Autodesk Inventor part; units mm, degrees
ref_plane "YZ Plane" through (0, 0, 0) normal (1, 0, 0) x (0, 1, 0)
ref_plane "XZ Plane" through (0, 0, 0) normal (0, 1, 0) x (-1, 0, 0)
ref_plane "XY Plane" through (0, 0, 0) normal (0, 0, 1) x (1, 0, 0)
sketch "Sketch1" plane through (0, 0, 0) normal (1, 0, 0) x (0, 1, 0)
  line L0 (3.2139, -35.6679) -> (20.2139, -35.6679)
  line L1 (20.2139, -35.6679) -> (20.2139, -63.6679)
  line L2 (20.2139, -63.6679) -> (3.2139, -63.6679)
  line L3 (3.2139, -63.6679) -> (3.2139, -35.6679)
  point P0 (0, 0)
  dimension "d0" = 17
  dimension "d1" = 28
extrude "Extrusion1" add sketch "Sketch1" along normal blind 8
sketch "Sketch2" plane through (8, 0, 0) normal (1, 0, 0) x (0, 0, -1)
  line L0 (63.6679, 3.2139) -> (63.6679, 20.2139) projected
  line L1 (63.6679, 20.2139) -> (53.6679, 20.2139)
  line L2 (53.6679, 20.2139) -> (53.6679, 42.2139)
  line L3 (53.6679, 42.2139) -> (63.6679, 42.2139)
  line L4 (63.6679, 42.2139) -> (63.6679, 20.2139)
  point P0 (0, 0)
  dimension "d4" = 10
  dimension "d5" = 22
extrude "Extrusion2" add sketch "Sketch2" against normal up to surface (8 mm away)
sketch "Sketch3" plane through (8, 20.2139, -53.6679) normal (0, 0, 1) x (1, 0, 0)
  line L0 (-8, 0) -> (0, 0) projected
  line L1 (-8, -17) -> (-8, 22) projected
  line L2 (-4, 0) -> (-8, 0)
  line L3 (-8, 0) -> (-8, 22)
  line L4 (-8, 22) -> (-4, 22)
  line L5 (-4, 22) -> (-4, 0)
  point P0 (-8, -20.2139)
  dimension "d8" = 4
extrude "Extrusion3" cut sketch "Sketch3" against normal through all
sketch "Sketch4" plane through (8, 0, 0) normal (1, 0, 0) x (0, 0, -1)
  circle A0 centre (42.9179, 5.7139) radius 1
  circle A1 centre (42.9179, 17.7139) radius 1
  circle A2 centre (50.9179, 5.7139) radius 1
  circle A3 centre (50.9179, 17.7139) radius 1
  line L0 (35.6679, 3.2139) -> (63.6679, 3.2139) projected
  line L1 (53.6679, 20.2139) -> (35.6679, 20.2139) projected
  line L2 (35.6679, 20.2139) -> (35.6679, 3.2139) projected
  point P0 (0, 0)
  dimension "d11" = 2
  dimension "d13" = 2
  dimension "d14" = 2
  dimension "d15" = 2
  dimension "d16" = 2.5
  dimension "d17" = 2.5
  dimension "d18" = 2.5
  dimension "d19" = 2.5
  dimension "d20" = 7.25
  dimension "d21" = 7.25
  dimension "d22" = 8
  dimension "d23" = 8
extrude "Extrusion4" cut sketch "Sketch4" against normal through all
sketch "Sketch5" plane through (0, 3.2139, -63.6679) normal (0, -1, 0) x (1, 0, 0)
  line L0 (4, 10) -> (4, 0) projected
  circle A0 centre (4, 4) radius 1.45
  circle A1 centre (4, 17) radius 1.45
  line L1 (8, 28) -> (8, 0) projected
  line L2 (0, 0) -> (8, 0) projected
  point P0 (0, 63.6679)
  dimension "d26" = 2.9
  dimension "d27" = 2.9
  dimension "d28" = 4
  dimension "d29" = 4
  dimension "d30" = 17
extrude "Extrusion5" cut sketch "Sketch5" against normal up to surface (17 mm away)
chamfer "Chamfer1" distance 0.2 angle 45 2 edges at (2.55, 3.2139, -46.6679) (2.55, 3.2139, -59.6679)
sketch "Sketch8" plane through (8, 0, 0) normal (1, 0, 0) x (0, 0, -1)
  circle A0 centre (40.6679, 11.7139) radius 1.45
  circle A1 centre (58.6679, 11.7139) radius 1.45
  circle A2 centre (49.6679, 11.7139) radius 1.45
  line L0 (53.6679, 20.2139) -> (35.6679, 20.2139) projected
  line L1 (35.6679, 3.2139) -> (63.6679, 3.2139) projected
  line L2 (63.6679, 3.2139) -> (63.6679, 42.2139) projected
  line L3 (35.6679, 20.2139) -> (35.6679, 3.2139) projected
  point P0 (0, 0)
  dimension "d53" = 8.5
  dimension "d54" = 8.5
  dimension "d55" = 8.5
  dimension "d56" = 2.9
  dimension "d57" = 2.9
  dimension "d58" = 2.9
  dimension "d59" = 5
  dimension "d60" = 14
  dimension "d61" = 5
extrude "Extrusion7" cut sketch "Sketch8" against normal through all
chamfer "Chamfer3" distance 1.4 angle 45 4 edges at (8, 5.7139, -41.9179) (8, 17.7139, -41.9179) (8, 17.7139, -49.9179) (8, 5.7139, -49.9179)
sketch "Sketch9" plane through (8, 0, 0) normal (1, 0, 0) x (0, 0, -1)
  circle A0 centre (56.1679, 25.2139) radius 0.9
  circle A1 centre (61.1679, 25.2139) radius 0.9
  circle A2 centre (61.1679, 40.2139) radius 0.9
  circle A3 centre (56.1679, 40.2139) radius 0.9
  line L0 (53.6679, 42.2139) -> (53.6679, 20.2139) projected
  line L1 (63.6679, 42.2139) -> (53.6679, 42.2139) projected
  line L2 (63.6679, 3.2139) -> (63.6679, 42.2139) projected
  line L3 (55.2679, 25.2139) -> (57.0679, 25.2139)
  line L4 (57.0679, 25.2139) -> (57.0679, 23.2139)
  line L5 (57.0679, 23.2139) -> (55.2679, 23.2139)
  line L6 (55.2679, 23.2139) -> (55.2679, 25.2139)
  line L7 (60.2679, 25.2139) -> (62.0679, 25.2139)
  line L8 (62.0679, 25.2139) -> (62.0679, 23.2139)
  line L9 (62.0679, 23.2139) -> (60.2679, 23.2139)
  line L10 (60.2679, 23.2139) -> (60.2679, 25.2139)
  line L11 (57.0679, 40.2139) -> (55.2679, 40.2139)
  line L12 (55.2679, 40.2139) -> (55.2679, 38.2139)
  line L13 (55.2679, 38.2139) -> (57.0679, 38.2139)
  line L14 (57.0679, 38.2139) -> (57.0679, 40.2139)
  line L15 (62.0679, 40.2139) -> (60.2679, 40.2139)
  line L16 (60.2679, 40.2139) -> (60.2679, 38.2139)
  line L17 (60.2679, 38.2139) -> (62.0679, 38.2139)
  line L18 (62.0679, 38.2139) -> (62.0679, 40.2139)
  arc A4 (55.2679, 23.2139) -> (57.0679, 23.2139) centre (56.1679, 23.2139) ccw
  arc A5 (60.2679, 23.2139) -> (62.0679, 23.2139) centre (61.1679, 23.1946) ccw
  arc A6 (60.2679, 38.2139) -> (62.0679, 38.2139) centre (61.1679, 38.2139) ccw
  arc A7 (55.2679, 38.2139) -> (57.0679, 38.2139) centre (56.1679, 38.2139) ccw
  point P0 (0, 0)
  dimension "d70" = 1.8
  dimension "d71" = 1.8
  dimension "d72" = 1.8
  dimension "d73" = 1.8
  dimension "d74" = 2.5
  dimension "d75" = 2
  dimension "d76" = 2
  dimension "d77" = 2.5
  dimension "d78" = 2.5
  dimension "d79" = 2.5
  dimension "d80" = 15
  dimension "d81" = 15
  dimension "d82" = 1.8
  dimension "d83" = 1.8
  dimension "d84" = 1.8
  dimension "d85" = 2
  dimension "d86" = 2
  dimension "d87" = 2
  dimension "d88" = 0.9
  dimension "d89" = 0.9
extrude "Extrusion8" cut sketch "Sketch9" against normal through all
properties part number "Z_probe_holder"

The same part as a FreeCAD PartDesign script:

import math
import FreeCAD as App
import Part
import Sketcher
Q = App.Units.Quantity


def edges_at(feature, points):
    """Names of the edges that pass closest to the given points."""
    edges = feature.Shape.Edges
    near = lambda p: min(range(len(edges)), key=lambda i: edges[i].distToShape(Part.Vertex(*p))[0])
    return sorted({f"Edge{near(p) + 1}" for p in points})


def add_polygon(sketch, points):
    """Adds a closed chain of lines whose ends are joined by coincident constraints."""
    first, n = sketch.GeometryCount, len(points)
    for a, b in zip(points, points[1:] + points[:1]):
        sketch.addGeometry(Part.LineSegment(App.Vector(*a, 0), App.Vector(*b, 0)), False)
    for i in range(n):
        sketch.addConstraint(Sketcher.Constraint("Coincident", first + i, 2, first + (i + 1) % n, 1))

doc = App.newDocument("Part")
body = doc.addObject("PartDesign::Body", "Body")

# Sketch on YZ plane
sketch1 = body.newObject("Sketcher::SketchObject", "Sketch")
sketch1.AttachmentSupport = (doc.getObject("YZ_Plane"), [""])
sketch1.MapMode = "FlatFace"
add_polygon(sketch1, [(20.2139, -35.6679), (3.2139, -35.6679), (3.2139, -63.6679), (20.2139, -63.6679)])  # lines 0-3
sketch1.addConstraint([
    Sketcher.Constraint("Horizontal", 0),
    Sketcher.Constraint("Vertical", 1),
    Sketcher.Constraint("Horizontal", 2),
    Sketcher.Constraint("Vertical", 3),
    Sketcher.Constraint("DistanceX", 0, 2, 0, 1, Q("17 mm")),
    Sketcher.Constraint("DistanceY", 1, 2, 1, 1, Q("28 mm")),
    Sketcher.Constraint("DistanceX", -1, 1, 0, 2, Q("3.214 mm")),
    Sketcher.Constraint("DistanceY", 0, 2, -1, 1, Q("35.668 mm")),
])
pad1 = body.newObject("PartDesign::Pad", "Pad")
pad1.Profile = sketch1
pad1.Length = 8

# Sketch on YZ plane
sketch2 = body.newObject("Sketcher::SketchObject", "Sketch001")
sketch2.AttachmentSupport = (doc.getObject("YZ_Plane"), [""])
sketch2.MapMode = "FlatFace"
sketch2.AttachmentOffset = App.Placement(App.Vector(0, 0, 8), App.Rotation())
add_polygon(sketch2, [(20.2139, -53.6679), (20.2139, -63.6679), (42.2139, -63.6679), (42.2139, -53.6679)])  # lines 0-3
sketch2.addConstraint([
    Sketcher.Constraint("Vertical", 0),
    Sketcher.Constraint("Horizontal", 1),
    Sketcher.Constraint("Vertical", 2),
    Sketcher.Constraint("Horizontal", 3),
    Sketcher.Constraint("DistanceX", 1, 1, 1, 2, Q("22 mm")),
    Sketcher.Constraint("DistanceY", 0, 2, 0, 1, Q("10 mm")),
    Sketcher.Constraint("DistanceX", -1, 1, 0, 2, Q("20.214 mm")),
    Sketcher.Constraint("DistanceY", 0, 2, -1, 1, Q("63.668 mm")),
])
pad2 = body.newObject("PartDesign::Pad", "Pad001")
pad2.Profile = sketch2
pad2.Length = 8
pad2.Reversed = True

# Sketch on XY plane
sketch3 = body.newObject("Sketcher::SketchObject", "Sketch002")
sketch3.AttachmentSupport = (doc.getObject("XY_Plane"), [""])
sketch3.MapMode = "FlatFace"
sketch3.AttachmentOffset = App.Placement(App.Vector(0, 0, -53.6679), App.Rotation())
add_polygon(sketch3, [(0, 42.2139), (0, 20.2139), (4, 20.2139), (4, 42.2139)])  # lines 0-3
sketch3.addConstraint([
    Sketcher.Constraint("Vertical", 0),
    Sketcher.Constraint("Horizontal", 1),
    Sketcher.Constraint("Vertical", 2),
    Sketcher.Constraint("Horizontal", 3),
    Sketcher.Constraint("PointOnObject", 0, 2, -2),
    Sketcher.Constraint("DistanceX", 1, 1, 1, 2, Q("4 mm")),
    Sketcher.Constraint("DistanceY", 0, 2, 0, 1, Q("22 mm")),
    Sketcher.Constraint("DistanceY", -1, 1, 0, 2, Q("20.214 mm")),
])
pocket1 = body.newObject("PartDesign::Pocket", "Pocket")
pocket1.Profile = sketch3
pocket1.Type = "ThroughAll"

# Sketch on YZ plane
sketch4 = body.newObject("Sketcher::SketchObject", "Sketch003")
sketch4.AttachmentSupport = (doc.getObject("YZ_Plane"), [""])
sketch4.MapMode = "FlatFace"
sketch4.AttachmentOffset = App.Placement(App.Vector(0, 0, 8), App.Rotation())
sketch4.addGeometry([
    Part.Circle(App.Vector(5.7139, -42.9179, 0), App.Vector(0, 0, 1), 1),
    Part.Circle(App.Vector(17.7139, -42.9179, 0), App.Vector(0, 0, 1), 1),
    Part.Circle(App.Vector(5.7139, -50.9179, 0), App.Vector(0, 0, 1), 1),
    Part.Circle(App.Vector(17.7139, -50.9179, 0), App.Vector(0, 0, 1), 1),
], False)
sketch4.addConstraint([
    Sketcher.Constraint("Equal", 0, 1),
    Sketcher.Constraint("Equal", 1, 2),
    Sketcher.Constraint("Equal", 2, 3),
    Sketcher.Constraint("Horizontal", 0, 3, 1, 3),
    Sketcher.Constraint("Horizontal", 2, 3, 3, 3),
    Sketcher.Constraint("Vertical", 0, 3, 2, 3),
    Sketcher.Constraint("Vertical", 1, 3, 3, 3),
    Sketcher.Constraint("Diameter", 0, Q("2 mm")),
    Sketcher.Constraint("DistanceY", 2, 3, 0, 3, Q("8 mm")),
    Sketcher.Constraint("DistanceX", 0, 3, 1, 3, Q("12 mm")),
    Sketcher.Constraint("DistanceX", -1, 1, 0, 3, Q("5.714 mm")),
    Sketcher.Constraint("DistanceY", 0, 3, -1, 1, Q("42.918 mm")),
])
pocket2 = body.newObject("PartDesign::Pocket", "Pocket001")
pocket2.Profile = sketch4
pocket2.Type = "ThroughAll"

# Sketch on XZ plane
sketch5 = body.newObject("Sketcher::SketchObject", "Sketch004")
sketch5.AttachmentSupport = (doc.getObject("XZ_Plane"), [""])
sketch5.MapMode = "FlatFace"
sketch5.AttachmentOffset = App.Placement(App.Vector(0, 0, -3.2139), App.Rotation())
sketch5.addGeometry([
    Part.Circle(App.Vector(4, -59.6679, 0), App.Vector(0, 0, 1), 1.45),
    Part.Circle(App.Vector(4, -46.6679, 0), App.Vector(0, 0, 1), 1.45),
], False)
sketch5.addConstraint([
    Sketcher.Constraint("Equal", 0, 1),
    Sketcher.Constraint("Vertical", 0, 3, 1, 3),
    Sketcher.Constraint("Diameter", 0, Q("2.9 mm")),
    Sketcher.Constraint("DistanceX", -1, 1, 0, 3, Q("4 mm")),
    Sketcher.Constraint("DistanceY", 0, 3, 1, 3, Q("13 mm")),
    Sketcher.Constraint("DistanceY", 0, 3, -1, 1, Q("59.668 mm")),
])
pocket3 = body.newObject("PartDesign::Pocket", "Pocket002")
pocket3.Profile = sketch5
pocket3.Length = 17
doc.recompute()

chamfer = body.newObject("PartDesign::Chamfer", "Chamfer")
chamfer.Base = (pocket3, edges_at(pocket3, [(2.55, 3.214, -46.668), (2.55, 3.214, -59.668)]))
chamfer.Size = 0.2

# Sketch on YZ plane
sketch6 = body.newObject("Sketcher::SketchObject", "Sketch005")
sketch6.AttachmentSupport = (doc.getObject("YZ_Plane"), [""])
sketch6.MapMode = "FlatFace"
sketch6.AttachmentOffset = App.Placement(App.Vector(0, 0, 8), App.Rotation())
sketch6.addGeometry([
    Part.Circle(App.Vector(11.7139, -40.6679, 0), App.Vector(0, 0, 1), 1.45),
    Part.Circle(App.Vector(11.7139, -58.6679, 0), App.Vector(0, 0, 1), 1.45),
    Part.Circle(App.Vector(11.7139, -49.6679, 0), App.Vector(0, 0, 1), 1.45),
], False)
sketch6.addConstraint([
    Sketcher.Constraint("Equal", 0, 1),
    Sketcher.Constraint("Equal", 1, 2),
    Sketcher.Constraint("Vertical", 0, 3, 1, 3),
    Sketcher.Constraint("Vertical", 1, 3, 2, 3),
    Sketcher.Constraint("Diameter", 0, Q("2.9 mm")),
    Sketcher.Constraint("DistanceY", 1, 3, 0, 3, Q("18 mm")),
    Sketcher.Constraint("DistanceY", 2, 3, 0, 3, Q("9 mm")),
    Sketcher.Constraint("DistanceX", -1, 1, 0, 3, Q("11.714 mm")),
    Sketcher.Constraint("DistanceY", 0, 3, -1, 1, Q("40.668 mm")),
])
pocket4 = body.newObject("PartDesign::Pocket", "Pocket003")
pocket4.Profile = sketch6
pocket4.Type = "ThroughAll"
doc.recompute()

chamfer2 = body.newObject("PartDesign::Chamfer", "Chamfer001")
chamfer2.Base = (pocket4, edges_at(pocket4, [
    (8, 5.714, -41.918),
    (8, 17.714, -41.918),
    (8, 17.714, -49.918),
    (8, 5.714, -49.918),
]))
chamfer2.Size = 1.4

# Sketch on YZ plane
sketch7 = body.newObject("Sketcher::SketchObject", "Sketch006")
sketch7.AttachmentSupport = (doc.getObject("YZ_Plane"), [""])
sketch7.MapMode = "FlatFace"
sketch7.AttachmentOffset = App.Placement(App.Vector(0, 0, 8), App.Rotation())
sketch7.addGeometry([
    Part.ArcOfCircle(Part.Circle(App.Vector(25.2139, -56.1679, 0), App.Vector(0, 0, 1), 0.9), math.radians(-90), math.radians(90)),  # 0
    Part.LineSegment(App.Vector(25.2139, -55.2679, 0), App.Vector(23.2139, -55.2679, 0)),  # 1
    Part.ArcOfCircle(Part.Circle(App.Vector(23.2139, -56.1679, 0), App.Vector(0, 0, 1), 0.9), math.radians(90), math.radians(270)),  # 2
    Part.LineSegment(App.Vector(23.2139, -57.0679, 0), App.Vector(25.2139, -57.0679, 0)),  # 3
    Part.ArcOfCircle(Part.Circle(App.Vector(25.2139, -61.1679, 0), App.Vector(0, 0, 1), 0.9), math.radians(-90), math.radians(90)),  # 4
    Part.LineSegment(App.Vector(25.2139, -60.2679, 0), App.Vector(23.2139, -60.2679, 0)),  # 5
    Part.ArcOfCircle(Part.Circle(App.Vector(23.1946, -61.1679, 0), App.Vector(0, 0, 1), 0.900207), math.radians(88.771512), math.radians(271.228488)),  # 6
    Part.LineSegment(App.Vector(23.2139, -62.0679, 0), App.Vector(25.2139, -62.0679, 0)),  # 7
    Part.ArcOfCircle(Part.Circle(App.Vector(40.2139, -61.1679, 0), App.Vector(0, 0, 1), 0.9), math.radians(-90), math.radians(90)),  # 8
    Part.LineSegment(App.Vector(40.2139, -60.2679, 0), App.Vector(38.2139, -60.2679, 0)),  # 9
    Part.ArcOfCircle(Part.Circle(App.Vector(38.2139, -61.1679, 0), App.Vector(0, 0, 1), 0.9), math.radians(90), math.radians(270)),  # 10
    Part.LineSegment(App.Vector(38.2139, -62.0679, 0), App.Vector(40.2139, -62.0679, 0)),  # 11
    Part.ArcOfCircle(Part.Circle(App.Vector(40.2139, -56.1679, 0), App.Vector(0, 0, 1), 0.9), math.radians(-90), math.radians(90)),  # 12
    Part.LineSegment(App.Vector(40.2139, -55.2679, 0), App.Vector(38.2139, -55.2679, 0)),  # 13
    Part.ArcOfCircle(Part.Circle(App.Vector(38.2139, -56.1679, 0), App.Vector(0, 0, 1), 0.9), math.radians(90), math.radians(270)),  # 14
    Part.LineSegment(App.Vector(38.2139, -57.0679, 0), App.Vector(40.2139, -57.0679, 0)),  # 15
], False)
sketch7.addConstraint([
    Sketcher.Constraint("Tangent", 0, 2, 1, 1),
    Sketcher.Constraint("Tangent", 1, 2, 2, 1),
    Sketcher.Constraint("Tangent", 2, 2, 3, 1),
    Sketcher.Constraint("Tangent", 3, 2, 0, 1),
    Sketcher.Constraint("Tangent", 4, 2, 5, 1),
    Sketcher.Constraint("Coincident", 5, 2, 6, 1),
    Sketcher.Constraint("Coincident", 6, 2, 7, 1),
    Sketcher.Constraint("Tangent", 7, 2, 4, 1),
    Sketcher.Constraint("Tangent", 8, 2, 9, 1),
    Sketcher.Constraint("Tangent", 9, 2, 10, 1),
    Sketcher.Constraint("Tangent", 10, 2, 11, 1),
    Sketcher.Constraint("Tangent", 11, 2, 8, 1),
    Sketcher.Constraint("Tangent", 12, 2, 13, 1),
    Sketcher.Constraint("Tangent", 13, 2, 14, 1),
    Sketcher.Constraint("Tangent", 14, 2, 15, 1),
    Sketcher.Constraint("Tangent", 15, 2, 12, 1),
    Sketcher.Constraint("Horizontal", 1),
    Sketcher.Constraint("Horizontal", 3),
    Sketcher.Constraint("Horizontal", 5),
    Sketcher.Constraint("Horizontal", 7),
    Sketcher.Constraint("Horizontal", 9),
    Sketcher.Constraint("Horizontal", 11),
    Sketcher.Constraint("Horizontal", 13),
    Sketcher.Constraint("Horizontal", 15),
    Sketcher.Constraint("Equal", 2, 4),
    Sketcher.Constraint("Equal", 4, 8),
    Sketcher.Constraint("Equal", 10, 12),
    Sketcher.Constraint("Horizontal", 4, 3, 6, 3),
    Sketcher.Constraint("Horizontal", 6, 3, 8, 3),
    Sketcher.Constraint("Horizontal", 2, 3, 12, 3),
    Sketcher.Constraint("Vertical", 0, 3, 4, 3),
    Sketcher.Constraint("Vertical", 8, 3, 12, 3),
    Sketcher.Constraint("Vertical", 10, 3, 14, 3),
    Sketcher.Constraint("Vertical", 2, 2, 5, 2),
    Sketcher.Constraint("Equal", 7, 9),
    Sketcher.Constraint("Radius", 0, Q("0.9 mm")),
    Sketcher.Constraint("DistanceX", 1, 2, 1, 1, Q("2 mm")),
    Sketcher.Constraint("DistanceX", 4, 3, 8, 3, Q("15 mm")),
    Sketcher.Constraint("Radius", 6, Q("0.9002 mm")),
    Sketcher.Constraint("DistanceY", 4, 3, 0, 3, Q("5 mm")),
    Sketcher.Constraint("DistanceX", -1, 1, 0, 3, Q("25.214 mm")),
    Sketcher.Constraint("DistanceY", 0, 3, -1, 1, Q("56.168 mm")),
])
pocket5 = body.newObject("PartDesign::Pocket", "Pocket004")
pocket5.Profile = sketch7
pocket5.Type = "ThroughAll"

doc.recompute()
